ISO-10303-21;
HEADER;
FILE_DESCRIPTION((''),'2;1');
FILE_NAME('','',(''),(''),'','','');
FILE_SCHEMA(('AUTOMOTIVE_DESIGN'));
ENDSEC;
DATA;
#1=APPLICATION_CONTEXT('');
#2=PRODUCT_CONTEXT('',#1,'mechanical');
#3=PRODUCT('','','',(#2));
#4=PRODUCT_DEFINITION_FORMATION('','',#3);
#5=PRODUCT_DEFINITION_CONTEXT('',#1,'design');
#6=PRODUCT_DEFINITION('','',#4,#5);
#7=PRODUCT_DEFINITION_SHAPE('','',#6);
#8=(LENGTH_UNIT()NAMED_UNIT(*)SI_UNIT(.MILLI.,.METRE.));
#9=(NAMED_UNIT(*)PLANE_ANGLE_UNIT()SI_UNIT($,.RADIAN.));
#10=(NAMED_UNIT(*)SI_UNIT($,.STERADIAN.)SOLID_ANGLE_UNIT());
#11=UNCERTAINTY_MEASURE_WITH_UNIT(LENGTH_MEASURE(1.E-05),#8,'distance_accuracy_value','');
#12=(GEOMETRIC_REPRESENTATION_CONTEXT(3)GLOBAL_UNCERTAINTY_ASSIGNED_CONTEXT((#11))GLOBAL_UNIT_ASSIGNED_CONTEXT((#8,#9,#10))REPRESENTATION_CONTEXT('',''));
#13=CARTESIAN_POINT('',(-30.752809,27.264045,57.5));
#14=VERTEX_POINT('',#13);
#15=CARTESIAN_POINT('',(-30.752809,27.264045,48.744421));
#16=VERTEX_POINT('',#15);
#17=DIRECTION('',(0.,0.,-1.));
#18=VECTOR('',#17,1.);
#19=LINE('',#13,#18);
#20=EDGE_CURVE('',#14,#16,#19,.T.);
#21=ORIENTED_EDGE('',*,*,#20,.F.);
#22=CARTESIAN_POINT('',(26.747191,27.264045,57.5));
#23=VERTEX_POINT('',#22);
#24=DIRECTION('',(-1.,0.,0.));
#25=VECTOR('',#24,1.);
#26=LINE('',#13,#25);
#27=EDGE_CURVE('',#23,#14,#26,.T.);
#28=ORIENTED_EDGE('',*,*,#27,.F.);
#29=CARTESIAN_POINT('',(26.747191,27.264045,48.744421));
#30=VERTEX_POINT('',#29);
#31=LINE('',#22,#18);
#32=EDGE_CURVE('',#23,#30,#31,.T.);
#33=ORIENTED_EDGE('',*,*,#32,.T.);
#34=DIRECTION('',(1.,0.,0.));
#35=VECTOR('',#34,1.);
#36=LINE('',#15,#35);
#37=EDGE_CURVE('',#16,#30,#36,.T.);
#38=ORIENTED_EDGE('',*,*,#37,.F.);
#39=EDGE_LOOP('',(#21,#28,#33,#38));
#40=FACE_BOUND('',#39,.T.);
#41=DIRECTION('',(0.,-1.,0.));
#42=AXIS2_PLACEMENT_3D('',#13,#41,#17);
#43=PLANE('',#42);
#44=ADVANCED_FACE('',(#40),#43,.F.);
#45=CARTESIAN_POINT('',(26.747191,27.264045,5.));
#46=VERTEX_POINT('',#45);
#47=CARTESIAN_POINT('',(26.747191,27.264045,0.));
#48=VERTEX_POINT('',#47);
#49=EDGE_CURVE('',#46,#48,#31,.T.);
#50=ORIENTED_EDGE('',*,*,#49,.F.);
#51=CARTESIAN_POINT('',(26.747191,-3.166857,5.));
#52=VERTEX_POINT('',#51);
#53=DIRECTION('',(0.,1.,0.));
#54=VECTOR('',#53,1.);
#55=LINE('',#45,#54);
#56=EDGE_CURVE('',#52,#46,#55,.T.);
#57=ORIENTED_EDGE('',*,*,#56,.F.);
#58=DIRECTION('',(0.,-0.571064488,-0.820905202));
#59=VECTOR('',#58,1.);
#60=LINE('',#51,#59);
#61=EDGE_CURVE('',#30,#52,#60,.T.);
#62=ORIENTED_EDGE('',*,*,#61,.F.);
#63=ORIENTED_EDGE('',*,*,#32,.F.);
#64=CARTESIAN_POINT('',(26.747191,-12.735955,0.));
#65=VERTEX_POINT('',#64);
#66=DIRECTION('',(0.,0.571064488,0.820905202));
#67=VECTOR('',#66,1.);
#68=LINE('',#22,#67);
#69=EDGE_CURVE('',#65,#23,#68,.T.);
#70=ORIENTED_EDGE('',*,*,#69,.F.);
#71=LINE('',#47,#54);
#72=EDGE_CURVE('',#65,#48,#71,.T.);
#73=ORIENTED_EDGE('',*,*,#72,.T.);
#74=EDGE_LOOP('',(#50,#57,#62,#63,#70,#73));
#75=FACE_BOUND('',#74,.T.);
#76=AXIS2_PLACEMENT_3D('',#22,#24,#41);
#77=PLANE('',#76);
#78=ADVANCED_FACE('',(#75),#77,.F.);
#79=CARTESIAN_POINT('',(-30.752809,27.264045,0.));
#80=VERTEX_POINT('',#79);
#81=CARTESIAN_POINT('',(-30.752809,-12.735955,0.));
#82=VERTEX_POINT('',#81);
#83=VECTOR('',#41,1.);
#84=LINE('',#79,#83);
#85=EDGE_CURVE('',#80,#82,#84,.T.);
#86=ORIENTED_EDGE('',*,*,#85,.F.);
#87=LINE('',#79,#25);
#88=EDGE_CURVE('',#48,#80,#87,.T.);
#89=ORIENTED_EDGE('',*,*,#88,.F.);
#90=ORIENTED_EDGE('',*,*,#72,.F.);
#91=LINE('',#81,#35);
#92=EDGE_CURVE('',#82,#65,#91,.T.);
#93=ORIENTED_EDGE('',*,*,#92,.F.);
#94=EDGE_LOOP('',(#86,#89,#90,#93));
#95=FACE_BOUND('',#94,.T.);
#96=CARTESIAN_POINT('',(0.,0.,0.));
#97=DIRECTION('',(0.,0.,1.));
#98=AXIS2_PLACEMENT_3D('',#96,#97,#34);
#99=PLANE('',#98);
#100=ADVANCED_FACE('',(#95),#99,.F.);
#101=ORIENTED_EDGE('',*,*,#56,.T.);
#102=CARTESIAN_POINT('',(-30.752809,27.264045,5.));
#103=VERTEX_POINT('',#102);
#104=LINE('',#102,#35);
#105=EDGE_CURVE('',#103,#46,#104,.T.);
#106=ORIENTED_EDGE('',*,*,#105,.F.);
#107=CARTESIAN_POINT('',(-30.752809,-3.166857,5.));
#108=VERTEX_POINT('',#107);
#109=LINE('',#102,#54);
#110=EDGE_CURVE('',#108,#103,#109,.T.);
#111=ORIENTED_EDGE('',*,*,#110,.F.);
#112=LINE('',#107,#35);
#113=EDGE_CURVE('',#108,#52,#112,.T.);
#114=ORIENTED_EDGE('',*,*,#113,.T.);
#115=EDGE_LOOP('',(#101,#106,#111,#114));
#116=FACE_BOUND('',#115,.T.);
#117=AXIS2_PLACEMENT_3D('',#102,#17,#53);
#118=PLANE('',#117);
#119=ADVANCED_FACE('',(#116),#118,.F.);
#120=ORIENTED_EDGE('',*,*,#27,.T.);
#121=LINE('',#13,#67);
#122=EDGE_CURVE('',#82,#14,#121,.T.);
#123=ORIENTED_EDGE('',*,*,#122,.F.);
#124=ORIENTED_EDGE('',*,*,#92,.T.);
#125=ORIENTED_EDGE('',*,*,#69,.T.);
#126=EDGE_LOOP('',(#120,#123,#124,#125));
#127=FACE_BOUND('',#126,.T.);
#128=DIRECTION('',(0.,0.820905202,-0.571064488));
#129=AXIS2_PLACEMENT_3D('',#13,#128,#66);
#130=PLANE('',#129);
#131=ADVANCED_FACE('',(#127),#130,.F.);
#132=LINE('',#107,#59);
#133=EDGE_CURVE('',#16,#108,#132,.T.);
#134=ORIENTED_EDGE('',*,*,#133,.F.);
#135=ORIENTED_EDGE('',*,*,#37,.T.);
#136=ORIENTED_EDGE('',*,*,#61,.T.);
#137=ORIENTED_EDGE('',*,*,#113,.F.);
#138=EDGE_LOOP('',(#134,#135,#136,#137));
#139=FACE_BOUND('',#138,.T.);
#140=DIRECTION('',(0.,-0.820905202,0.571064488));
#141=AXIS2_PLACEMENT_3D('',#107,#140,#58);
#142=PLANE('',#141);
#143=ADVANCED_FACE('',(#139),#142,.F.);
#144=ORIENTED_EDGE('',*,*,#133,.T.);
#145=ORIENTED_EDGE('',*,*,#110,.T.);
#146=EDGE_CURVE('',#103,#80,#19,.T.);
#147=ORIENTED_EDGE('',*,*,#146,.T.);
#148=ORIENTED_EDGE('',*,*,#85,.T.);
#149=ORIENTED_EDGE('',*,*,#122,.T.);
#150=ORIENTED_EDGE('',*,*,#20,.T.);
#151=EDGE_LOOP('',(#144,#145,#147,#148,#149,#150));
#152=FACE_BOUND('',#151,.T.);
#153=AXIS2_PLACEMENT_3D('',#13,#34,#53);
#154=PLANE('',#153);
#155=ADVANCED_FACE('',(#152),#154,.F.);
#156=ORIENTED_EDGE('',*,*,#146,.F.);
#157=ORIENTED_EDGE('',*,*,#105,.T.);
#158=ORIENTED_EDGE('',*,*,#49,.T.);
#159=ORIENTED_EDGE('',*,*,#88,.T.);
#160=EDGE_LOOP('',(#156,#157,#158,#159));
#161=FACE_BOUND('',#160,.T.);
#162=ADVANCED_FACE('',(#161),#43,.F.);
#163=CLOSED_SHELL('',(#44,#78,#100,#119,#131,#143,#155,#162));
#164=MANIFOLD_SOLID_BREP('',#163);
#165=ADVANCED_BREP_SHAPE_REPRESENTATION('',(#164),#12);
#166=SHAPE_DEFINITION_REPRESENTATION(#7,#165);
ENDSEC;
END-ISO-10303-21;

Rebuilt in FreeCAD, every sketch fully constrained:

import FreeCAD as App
import Part
import Sketcher


def add_polygon(sketch, points):
    """Adds a closed chain of lines whose ends are joined by coincident constraints."""
    first, n = sketch.GeometryCount, len(points)
    for a, b in zip(points, points[1:] + points[:1]):
        sketch.addGeometry(Part.LineSegment(App.Vector(*a, 0), App.Vector(*b, 0)), False)
    for i in range(n):
        sketch.addConstraint(Sketcher.Constraint("Coincident", first + i, 2, first + (i + 1) % n, 1))

doc = App.newDocument("Part")
body = doc.addObject("PartDesign::Body", "Body")

sketch1 = body.newObject("Sketcher::SketchObject", "Sketch")
sketch1.AttachmentSupport = (doc.getObject("XY_Plane"), [""])
sketch1.MapMode = "FlatFace"
add_polygon(sketch1, [(-31, 27), (-31, -13), (27, -13), (27, 27)])
sketch1.addConstraint(Sketcher.Constraint("Vertical", 0))
sketch1.addConstraint(Sketcher.Constraint("Horizontal", 1))
sketch1.addConstraint(Sketcher.Constraint("Vertical", 2))
sketch1.addConstraint(Sketcher.Constraint("Horizontal", 3))
sketch1.addConstraint(Sketcher.Constraint("DistanceY", 0, 2, 0, 1, 40.0))
sketch1.addConstraint(Sketcher.Constraint("DistanceX", 1, 1, 1, 2, 57.5))
sketch1.addConstraint(Sketcher.Constraint("DistanceX", 0, 2, -1, 1, 30.752809))
sketch1.addConstraint(Sketcher.Constraint("DistanceY", 0, 2, -1, 1, 12.735955))
pad1 = body.newObject("PartDesign::Pad", "Pad")
pad1.Profile = sketch1
pad1.Length = 57.5

sketch2 = body.newObject("Sketcher::SketchObject", "Sketch001")
sketch2.AttachmentSupport = (doc.getObject("YZ_Plane"), [""])
sketch2.MapMode = "FlatFace"
sketch2.AttachmentOffset = App.Placement(App.Vector(0, 0, 26.747191), App.Rotation())
add_polygon(sketch2, [(-13, 0), (27, 58), (-13, 58)])
sketch2.addConstraint(Sketcher.Constraint("Horizontal", 1))
sketch2.addConstraint(Sketcher.Constraint("Vertical", 2))
sketch2.addConstraint(Sketcher.Constraint("PointOnObject", 2, 2, -1))
sketch2.addConstraint(Sketcher.Constraint("DistanceX", 1, 2, 1, 1, 40.0))
sketch2.addConstraint(Sketcher.Constraint("DistanceY", 2, 2, 2, 1, 57.5))
sketch2.addConstraint(Sketcher.Constraint("DistanceX", -1, 1, 0, 2, 27.264045))
pocket1 = body.newObject("PartDesign::Pocket", "Pocket")
pocket1.Profile = sketch2
pocket1.Type = "ThroughAll"

sketch3 = body.newObject("Sketcher::SketchObject", "Sketch002")
sketch3.AttachmentSupport = (doc.getObject("YZ_Plane"), [""])
sketch3.MapMode = "FlatFace"
sketch3.AttachmentOffset = App.Placement(App.Vector(0, 0, 26.747191), App.Rotation())
add_polygon(sketch3, [(-3, 5), (27, 5), (27, 49)])
sketch3.addConstraint(Sketcher.Constraint("Horizontal", 0))
sketch3.addConstraint(Sketcher.Constraint("Vertical", 1))
sketch3.addConstraint(Sketcher.Constraint("DistanceY", -1, 1, 0, 2, 5.0))
sketch3.addConstraint(Sketcher.Constraint("DistanceX", 0, 1, 0, 2, 30.430902))
sketch3.addConstraint(Sketcher.Constraint("DistanceY", 1, 1, 1, 2, 43.744421))
sketch3.addConstraint(Sketcher.Constraint("DistanceX", -1, 1, 0, 2, 27.264045))
pocket2 = body.newObject("PartDesign::Pocket", "Pocket001")
pocket2.Profile = sketch3
pocket2.Type = "ThroughAll"

doc.recompute()
